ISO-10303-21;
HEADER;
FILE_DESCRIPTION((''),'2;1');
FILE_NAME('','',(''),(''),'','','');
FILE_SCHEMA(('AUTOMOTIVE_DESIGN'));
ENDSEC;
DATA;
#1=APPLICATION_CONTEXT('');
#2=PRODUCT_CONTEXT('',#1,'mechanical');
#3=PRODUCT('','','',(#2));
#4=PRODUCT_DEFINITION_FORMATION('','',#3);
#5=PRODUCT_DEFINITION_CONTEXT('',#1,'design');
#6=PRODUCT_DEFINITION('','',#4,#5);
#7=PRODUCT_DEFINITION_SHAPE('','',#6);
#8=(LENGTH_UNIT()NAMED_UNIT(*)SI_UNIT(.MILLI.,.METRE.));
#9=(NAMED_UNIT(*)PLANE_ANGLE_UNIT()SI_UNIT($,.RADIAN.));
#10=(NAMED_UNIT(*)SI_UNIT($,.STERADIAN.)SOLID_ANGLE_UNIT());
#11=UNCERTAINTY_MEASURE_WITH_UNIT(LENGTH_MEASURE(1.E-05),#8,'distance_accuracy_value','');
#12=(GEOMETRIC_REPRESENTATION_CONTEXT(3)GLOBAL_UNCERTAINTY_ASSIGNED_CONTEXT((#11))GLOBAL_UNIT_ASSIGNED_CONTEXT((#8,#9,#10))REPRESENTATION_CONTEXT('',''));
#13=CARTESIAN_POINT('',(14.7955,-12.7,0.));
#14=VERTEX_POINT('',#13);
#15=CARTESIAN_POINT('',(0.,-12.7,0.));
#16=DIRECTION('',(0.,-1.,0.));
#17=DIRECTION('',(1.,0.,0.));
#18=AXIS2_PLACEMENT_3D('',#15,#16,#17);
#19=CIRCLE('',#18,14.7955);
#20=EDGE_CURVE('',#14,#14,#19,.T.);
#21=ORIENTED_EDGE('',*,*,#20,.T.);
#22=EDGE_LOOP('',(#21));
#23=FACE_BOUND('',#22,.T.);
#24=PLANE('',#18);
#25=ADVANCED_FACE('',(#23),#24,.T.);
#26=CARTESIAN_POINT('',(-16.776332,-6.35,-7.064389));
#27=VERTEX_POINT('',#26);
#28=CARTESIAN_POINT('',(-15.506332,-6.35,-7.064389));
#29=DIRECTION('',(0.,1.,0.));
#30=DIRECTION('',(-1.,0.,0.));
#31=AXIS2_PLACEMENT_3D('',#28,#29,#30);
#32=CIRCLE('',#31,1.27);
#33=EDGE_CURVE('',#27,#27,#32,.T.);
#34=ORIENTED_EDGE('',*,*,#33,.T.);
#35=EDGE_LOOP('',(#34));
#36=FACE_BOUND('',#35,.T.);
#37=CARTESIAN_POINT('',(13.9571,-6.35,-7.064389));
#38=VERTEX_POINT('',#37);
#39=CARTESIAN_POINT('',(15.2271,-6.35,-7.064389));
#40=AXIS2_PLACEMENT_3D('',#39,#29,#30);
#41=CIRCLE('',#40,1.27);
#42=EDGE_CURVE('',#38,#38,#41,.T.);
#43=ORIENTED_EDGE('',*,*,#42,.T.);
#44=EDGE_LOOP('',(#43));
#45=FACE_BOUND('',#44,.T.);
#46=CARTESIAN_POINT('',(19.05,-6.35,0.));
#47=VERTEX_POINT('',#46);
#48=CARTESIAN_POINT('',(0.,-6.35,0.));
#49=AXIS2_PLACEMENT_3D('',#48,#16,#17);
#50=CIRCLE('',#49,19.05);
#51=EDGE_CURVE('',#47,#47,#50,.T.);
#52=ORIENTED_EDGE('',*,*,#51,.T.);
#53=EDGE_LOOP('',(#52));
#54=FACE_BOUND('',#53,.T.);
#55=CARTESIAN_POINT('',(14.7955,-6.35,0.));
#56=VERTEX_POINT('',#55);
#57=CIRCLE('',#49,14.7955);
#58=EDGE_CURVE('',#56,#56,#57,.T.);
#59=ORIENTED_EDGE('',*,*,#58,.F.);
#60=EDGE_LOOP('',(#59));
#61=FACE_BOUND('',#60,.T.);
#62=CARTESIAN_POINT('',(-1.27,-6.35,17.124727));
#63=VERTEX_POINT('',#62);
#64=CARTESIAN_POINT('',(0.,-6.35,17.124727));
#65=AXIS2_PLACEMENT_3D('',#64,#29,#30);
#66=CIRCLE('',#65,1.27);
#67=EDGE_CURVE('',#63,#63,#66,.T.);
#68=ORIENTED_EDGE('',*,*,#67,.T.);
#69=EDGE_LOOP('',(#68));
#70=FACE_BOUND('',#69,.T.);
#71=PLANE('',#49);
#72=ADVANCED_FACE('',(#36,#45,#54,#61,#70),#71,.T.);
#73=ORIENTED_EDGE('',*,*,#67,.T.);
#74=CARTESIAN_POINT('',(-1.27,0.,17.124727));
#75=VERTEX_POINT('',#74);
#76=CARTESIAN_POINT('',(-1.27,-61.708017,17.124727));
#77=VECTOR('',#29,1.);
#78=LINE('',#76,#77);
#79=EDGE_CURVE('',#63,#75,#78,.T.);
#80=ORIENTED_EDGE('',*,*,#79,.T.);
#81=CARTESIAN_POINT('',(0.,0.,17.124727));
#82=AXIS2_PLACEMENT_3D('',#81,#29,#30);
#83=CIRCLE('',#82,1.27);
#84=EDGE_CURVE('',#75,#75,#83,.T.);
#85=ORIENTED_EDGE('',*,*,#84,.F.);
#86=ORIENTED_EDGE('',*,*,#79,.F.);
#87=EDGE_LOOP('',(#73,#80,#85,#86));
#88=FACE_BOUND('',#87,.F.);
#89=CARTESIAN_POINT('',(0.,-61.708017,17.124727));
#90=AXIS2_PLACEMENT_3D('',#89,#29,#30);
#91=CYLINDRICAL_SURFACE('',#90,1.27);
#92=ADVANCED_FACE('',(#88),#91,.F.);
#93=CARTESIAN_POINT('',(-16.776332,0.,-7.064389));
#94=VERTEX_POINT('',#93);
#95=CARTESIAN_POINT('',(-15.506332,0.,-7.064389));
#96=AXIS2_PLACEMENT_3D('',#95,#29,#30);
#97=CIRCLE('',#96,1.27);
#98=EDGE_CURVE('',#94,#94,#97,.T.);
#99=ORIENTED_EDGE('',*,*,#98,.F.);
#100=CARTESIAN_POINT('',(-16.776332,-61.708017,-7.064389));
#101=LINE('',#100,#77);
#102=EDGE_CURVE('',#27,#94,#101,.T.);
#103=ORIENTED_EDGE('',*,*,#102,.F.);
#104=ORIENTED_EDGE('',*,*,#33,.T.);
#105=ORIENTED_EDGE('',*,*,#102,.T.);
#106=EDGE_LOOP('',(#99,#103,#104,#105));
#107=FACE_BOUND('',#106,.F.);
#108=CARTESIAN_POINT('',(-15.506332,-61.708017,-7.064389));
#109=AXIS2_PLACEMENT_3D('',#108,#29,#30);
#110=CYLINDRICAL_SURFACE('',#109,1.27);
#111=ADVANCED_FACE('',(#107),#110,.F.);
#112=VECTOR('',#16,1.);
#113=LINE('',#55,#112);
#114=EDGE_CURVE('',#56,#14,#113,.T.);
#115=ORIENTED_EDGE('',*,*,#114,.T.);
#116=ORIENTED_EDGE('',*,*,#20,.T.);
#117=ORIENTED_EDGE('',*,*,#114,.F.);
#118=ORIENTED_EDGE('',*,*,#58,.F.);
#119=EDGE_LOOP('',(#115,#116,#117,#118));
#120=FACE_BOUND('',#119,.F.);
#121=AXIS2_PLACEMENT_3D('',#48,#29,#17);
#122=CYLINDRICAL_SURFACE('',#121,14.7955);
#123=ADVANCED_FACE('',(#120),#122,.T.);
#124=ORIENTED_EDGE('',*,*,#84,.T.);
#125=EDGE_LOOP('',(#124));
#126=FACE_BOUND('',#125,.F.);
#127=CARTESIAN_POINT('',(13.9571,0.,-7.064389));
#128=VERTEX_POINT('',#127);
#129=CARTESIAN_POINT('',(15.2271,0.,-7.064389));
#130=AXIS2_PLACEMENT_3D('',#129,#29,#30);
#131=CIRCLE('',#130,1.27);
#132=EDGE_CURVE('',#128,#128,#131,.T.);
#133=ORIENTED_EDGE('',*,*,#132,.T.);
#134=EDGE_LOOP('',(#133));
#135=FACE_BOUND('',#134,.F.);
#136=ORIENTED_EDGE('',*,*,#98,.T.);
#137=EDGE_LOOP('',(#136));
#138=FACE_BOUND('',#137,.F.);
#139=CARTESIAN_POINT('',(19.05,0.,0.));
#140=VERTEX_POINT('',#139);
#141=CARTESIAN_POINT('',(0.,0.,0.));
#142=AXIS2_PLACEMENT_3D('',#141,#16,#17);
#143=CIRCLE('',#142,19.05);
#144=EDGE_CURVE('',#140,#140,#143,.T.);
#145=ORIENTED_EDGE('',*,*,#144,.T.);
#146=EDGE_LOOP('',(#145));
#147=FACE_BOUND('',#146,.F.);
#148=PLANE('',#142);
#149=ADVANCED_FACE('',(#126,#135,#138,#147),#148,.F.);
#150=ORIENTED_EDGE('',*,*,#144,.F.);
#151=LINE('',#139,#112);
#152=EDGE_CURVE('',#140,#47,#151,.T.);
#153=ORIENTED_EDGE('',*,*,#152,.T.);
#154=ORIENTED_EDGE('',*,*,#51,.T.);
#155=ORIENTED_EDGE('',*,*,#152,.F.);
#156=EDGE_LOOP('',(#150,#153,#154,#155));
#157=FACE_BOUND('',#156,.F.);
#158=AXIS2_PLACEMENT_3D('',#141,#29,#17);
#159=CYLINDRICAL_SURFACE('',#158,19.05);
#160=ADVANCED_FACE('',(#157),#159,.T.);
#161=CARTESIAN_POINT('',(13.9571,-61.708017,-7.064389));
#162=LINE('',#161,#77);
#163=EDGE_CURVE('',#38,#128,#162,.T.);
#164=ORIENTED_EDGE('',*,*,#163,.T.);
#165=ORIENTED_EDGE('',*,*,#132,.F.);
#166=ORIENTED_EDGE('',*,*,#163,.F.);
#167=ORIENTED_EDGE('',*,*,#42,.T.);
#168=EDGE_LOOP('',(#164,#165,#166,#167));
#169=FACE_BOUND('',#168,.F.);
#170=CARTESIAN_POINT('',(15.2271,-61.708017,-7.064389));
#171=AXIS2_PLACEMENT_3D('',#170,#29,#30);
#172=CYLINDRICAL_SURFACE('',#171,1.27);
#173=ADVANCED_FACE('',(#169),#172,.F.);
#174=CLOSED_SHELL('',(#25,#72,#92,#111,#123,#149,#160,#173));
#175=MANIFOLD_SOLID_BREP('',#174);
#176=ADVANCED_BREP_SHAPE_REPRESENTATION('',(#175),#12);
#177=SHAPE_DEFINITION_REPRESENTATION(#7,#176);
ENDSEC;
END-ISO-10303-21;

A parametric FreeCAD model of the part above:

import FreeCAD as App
import Part
import Sketcher

V = App.Vector
Q = App.Units.Quantity

doc = App.newDocument("Part")
params = doc.addObject("Spreadsheet::Sheet", "Params")
for row, (alias, value) in enumerate([
    ("sketch1_diameter", "1.5 in"),
    ("pad1_length", "0.25 in"),
    ("sketch2_diameter", "1.165 in"),
    ("pad2_length", "0.25 in"),
    ("sketch3_diameter", "0.1 in"),
    ("hole_diameter", "0.1 in"),
], start=1):
    params.set(f"A{row}", alias)
    params.set(f"B{row}", "=" + value)
    params.setAlias(f"B{row}", alias)

body = doc.addObject("PartDesign::Body", "Body")

sketch1 = doc.addObject("Sketcher::SketchObject", "Sketch")
body.addObject(sketch1)
sketch1.AttachmentSupport = (doc.XZ_Plane, [""])
sketch1.MapMode = "FlatFace"
sketch1.addGeometry(Part.Circle(V(0, 0, 0), V(0, 0, 1), 19), False)
sketch1.addConstraint(Sketcher.Constraint("Coincident", 0, 3, -1, 1))
sketch1.addConstraint(Sketcher.Constraint("Diameter", 0, Q("1.5 in")))
sketch1.setExpression("Constraints[1]", "Params.sketch1_diameter")
pad1 = doc.addObject("PartDesign::Pad", "Pad")
body.addObject(pad1)
pad1.Profile = sketch1
pad1.setExpression("Length", "Params.pad1_length")

sketch2 = doc.addObject("Sketcher::SketchObject", "Sketch001")
body.addObject(sketch2)
sketch2.AttachmentSupport = (doc.XZ_Plane, [""])
sketch2.MapMode = "FlatFace"
sketch2.AttachmentOffset = App.Placement(V(0, 0, 0.25 * 25.4), App.Rotation())
sketch2.addGeometry(Part.Circle(V(0, 0, 0), V(0, 0, 1), 15), False)
sketch2.addConstraint(Sketcher.Constraint("Coincident", 0, 3, -1, 1))
sketch2.addConstraint(Sketcher.Constraint("Diameter", 0, Q("1.165 in")))
sketch2.setExpression("Constraints[1]", "Params.sketch2_diameter")
pad2 = doc.addObject("PartDesign::Pad", "Pad001")
body.addObject(pad2)
pad2.Profile = sketch2
pad2.setExpression("Length", "Params.pad2_length")

sketch3 = doc.addObject("Sketcher::SketchObject", "Sketch002")
body.addObject(sketch3)
sketch3.AttachmentSupport = (doc.XZ_Plane, [""])
sketch3.MapMode = "FlatFace"
sketch3.AttachmentOffset = App.Placement(V(0, 0, 0.25 * 25.4), App.Rotation())
sketch3.addGeometry(Part.Circle(V(0, 17.1, 0), V(0, 0, 1), 1.3), False)
sketch3.addGeometry(Part.Circle(V(15.2, -7.1, 0), V(0, 0, 1), 1.3), False)
sketch3.addGeometry(Part.Circle(V(-15.5, -7.1, 0), V(0, 0, 1), 1.3), False)
sketch3.addConstraint(Sketcher.Constraint("Equal", 0, 1))
sketch3.addConstraint(Sketcher.Constraint("Equal", 1, 2))
sketch3.addConstraint(Sketcher.Constraint("PointOnObject", 0, 3, -2))
sketch3.addConstraint(Sketcher.Constraint("Horizontal", 1, 3, 2, 3))
sketch3.addConstraint(Sketcher.Constraint("Diameter", 0, Q("0.1 in")))
sketch3.addConstraint(Sketcher.Constraint("DistanceX", -1, 1, 1, 3, 15.2271))
sketch3.addConstraint(Sketcher.Constraint("DistanceY", 1, 3, -1, 1, 7.064389))
sketch3.addConstraint(Sketcher.Constraint("DistanceY", -1, 1, 0, 3, 17.124727))
sketch3.addConstraint(Sketcher.Constraint("DistanceX", 2, 3, -1, 1, 15.506332))
sketch3.setExpression("Constraints[4]", "Params.sketch3_diameter")
doc.recompute()
hole = doc.addObject("PartDesign::Hole", "Hole")
body.addObject(hole)
hole.Profile = sketch3
hole.ThreadType = "None"
hole.setExpression("Diameter", "Params.hole_diameter")
hole.DepthType = "ThroughAll"

doc.recompute()
